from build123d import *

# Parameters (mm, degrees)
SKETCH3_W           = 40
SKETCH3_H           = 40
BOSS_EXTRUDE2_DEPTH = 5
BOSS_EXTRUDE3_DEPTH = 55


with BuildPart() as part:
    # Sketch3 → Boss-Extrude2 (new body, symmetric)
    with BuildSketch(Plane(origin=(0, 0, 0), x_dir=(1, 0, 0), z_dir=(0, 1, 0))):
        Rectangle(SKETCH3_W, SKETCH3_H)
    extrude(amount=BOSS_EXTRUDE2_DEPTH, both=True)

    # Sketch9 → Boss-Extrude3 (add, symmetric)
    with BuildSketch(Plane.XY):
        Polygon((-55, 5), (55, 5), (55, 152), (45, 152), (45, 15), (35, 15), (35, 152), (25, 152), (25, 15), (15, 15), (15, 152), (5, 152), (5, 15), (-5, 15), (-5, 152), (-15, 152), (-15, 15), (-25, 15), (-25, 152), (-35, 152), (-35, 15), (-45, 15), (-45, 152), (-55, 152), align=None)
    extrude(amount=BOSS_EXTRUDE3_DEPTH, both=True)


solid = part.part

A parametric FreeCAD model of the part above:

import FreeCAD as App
import Part
import Sketcher
from FreeCAD import Vector

doc = App.newDocument("Part")
body = doc.addObject("PartDesign::Body", "Body")

# Sketch on XZ plane
sketch1 = doc.addObject("Sketcher::SketchObject", "Sketch")
body.addObject(sketch1)
sketch1.AttachmentSupport = (doc.XZ_Plane, [""])
sketch1.MapMode = "FlatFace"
sketch1.addGeometry([
    Part.LineSegment(Vector(-20, -20, 0), Vector(-20, 20, 0)),
    Part.LineSegment(Vector(-20, 20, 0), Vector(20, 20, 0)),
    Part.LineSegment(Vector(20, 20, 0), Vector(20, -20, 0)),
    Part.LineSegment(Vector(20, -20, 0), Vector(-20, -20, 0)),
], False)
sketch1.addConstraint([
    Sketcher.Constraint("Coincident", 0, 2, 1, 1),
    Sketcher.Constraint("Coincident", 1, 2, 2, 1),
    Sketcher.Constraint("Coincident", 2, 2, 3, 1),
    Sketcher.Constraint("Coincident", 3, 2, 0, 1),
    Sketcher.Constraint("Vertical", 0),
    Sketcher.Constraint("Horizontal", 1),
    Sketcher.Constraint("Vertical", 2),
    Sketcher.Constraint("Horizontal", 3),
    Sketcher.Constraint("Symmetric", 0, 2, 2, 2, -1, 1),
    Sketcher.Constraint("Equal", 3, 0),
    Sketcher.Constraint("DistanceX", 1, 1, 1, 2, 40.0),
])
pad1 = doc.addObject("PartDesign::Pad", "Pad")
body.addObject(pad1)
pad1.Profile = sketch1
pad1.Length = 10
pad1.Midplane = True

# Sketch on XY plane
sketch2 = doc.addObject("Sketcher::SketchObject", "Sketch001")
body.addObject(sketch2)
sketch2.AttachmentSupport = (doc.XY_Plane, [""])
sketch2.MapMode = "FlatFace"
sketch2.addGeometry([
    Part.LineSegment(Vector(-55, 5, 0), Vector(55, 5, 0)),  # 0
    Part.LineSegment(Vector(55, 5, 0), Vector(55, 152, 0)),  # 1
    Part.LineSegment(Vector(55, 152, 0), Vector(45, 152, 0)),  # 2
    Part.LineSegment(Vector(45, 152, 0), Vector(45, 15, 0)),  # 3
    Part.LineSegment(Vector(45, 15, 0), Vector(35, 15, 0)),  # 4
    Part.LineSegment(Vector(35, 15, 0), Vector(35, 152, 0)),  # 5
    Part.LineSegment(Vector(35, 152, 0), Vector(25, 152, 0)),  # 6
    Part.LineSegment(Vector(25, 152, 0), Vector(25, 15, 0)),  # 7
    Part.LineSegment(Vector(25, 15, 0), Vector(15, 15, 0)),  # 8
    Part.LineSegment(Vector(15, 15, 0), Vector(15, 152, 0)),  # 9
    Part.LineSegment(Vector(15, 152, 0), Vector(5, 152, 0)),  # 10
    Part.LineSegment(Vector(5, 152, 0), Vector(5, 15, 0)),  # 11
    Part.LineSegment(Vector(5, 15, 0), Vector(-5, 15, 0)),  # 12
    Part.LineSegment(Vector(-5, 15, 0), Vector(-5, 152, 0)),  # 13
    Part.LineSegment(Vector(-5, 152, 0), Vector(-15, 152, 0)),  # 14
    Part.LineSegment(Vector(-15, 152, 0), Vector(-15, 15, 0)),  # 15
    Part.LineSegment(Vector(-15, 15, 0), Vector(-25, 15, 0)),  # 16
    Part.LineSegment(Vector(-25, 15, 0), Vector(-25, 152, 0)),  # 17
    Part.LineSegment(Vector(-25, 152, 0), Vector(-35, 152, 0)),  # 18
    Part.LineSegment(Vector(-35, 152, 0), Vector(-35, 15, 0)),  # 19
    Part.LineSegment(Vector(-35, 15, 0), Vector(-45, 15, 0)),  # 20
    Part.LineSegment(Vector(-45, 15, 0), Vector(-45, 152, 0)),  # 21
    Part.LineSegment(Vector(-45, 152, 0), Vector(-55, 152, 0)),  # 22
    Part.LineSegment(Vector(-55, 152, 0), Vector(-55, 5, 0)),  # 23
], False)
sketch2.addConstraint([
    Sketcher.Constraint("Coincident", 0, 2, 1, 1),
    Sketcher.Constraint("Coincident", 1, 2, 2, 1),
    Sketcher.Constraint("Coincident", 2, 2, 3, 1),
    Sketcher.Constraint("Coincident", 3, 2, 4, 1),
    Sketcher.Constraint("Coincident", 4, 2, 5, 1),
    Sketcher.Constraint("Coincident", 5, 2, 6, 1),
    Sketcher.Constraint("Coincident", 6, 2, 7, 1),
    Sketcher.Constraint("Coincident", 7, 2, 8, 1),
    Sketcher.Constraint("Coincident", 8, 2, 9, 1),
    Sketcher.Constraint("Coincident", 9, 2, 10, 1),
    Sketcher.Constraint("Coincident", 10, 2, 11, 1),
    Sketcher.Constraint("Coincident", 11, 2, 12, 1),
    Sketcher.Constraint("Coincident", 12, 2, 13, 1),
    Sketcher.Constraint("Coincident", 13, 2, 14, 1),
    Sketcher.Constraint("Coincident", 14, 2, 15, 1),
    Sketcher.Constraint("Coincident", 15, 2, 16, 1),
    Sketcher.Constraint("Coincident", 16, 2, 17, 1),
    Sketcher.Constraint("Coincident", 17, 2, 18, 1),
    Sketcher.Constraint("Coincident", 18, 2, 19, 1),
    Sketcher.Constraint("Coincident", 19, 2, 20, 1),
    Sketcher.Constraint("Coincident", 20, 2, 21, 1),
    Sketcher.Constraint("Coincident", 21, 2, 22, 1),
    Sketcher.Constraint("Coincident", 22, 2, 23, 1),
    Sketcher.Constraint("Coincident", 23, 2, 0, 1),
    Sketcher.Constraint("Horizontal", 0),
    Sketcher.Constraint("Vertical", 1),
    Sketcher.Constraint("Horizontal", 2),
    Sketcher.Constraint("Vertical", 3),
    Sketcher.Constraint("Horizontal", 4),
    Sketcher.Constraint("Vertical", 5),
    Sketcher.Constraint("Horizontal", 6),
    Sketcher.Constraint("Vertical", 7),
    Sketcher.Constraint("Horizontal", 8),
    Sketcher.Constraint("Vertical", 9),
    Sketcher.Constraint("Horizontal", 10),
    Sketcher.Constraint("Vertical", 11),
    Sketcher.Constraint("Horizontal", 12),
    Sketcher.Constraint("Vertical", 13),
    Sketcher.Constraint("Horizontal", 14),
    Sketcher.Constraint("Vertical", 15),
    Sketcher.Constraint("Horizontal", 16),
    Sketcher.Constraint("Vertical", 17),
    Sketcher.Constraint("Horizontal", 18),
    Sketcher.Constraint("Vertical", 19),
    Sketcher.Constraint("Horizontal", 20),
    Sketcher.Constraint("Vertical", 21),
    Sketcher.Constraint("Horizontal", 22),
    Sketcher.Constraint("Vertical", 23),
    Sketcher.Constraint("Symmetric", 10, 2, 13, 2, -2),
    Sketcher.Constraint("Symmetric", 8, 2, 15, 2, -2),
    Sketcher.Constraint("Symmetric", 6, 2, 17, 2, -2),
    Sketcher.Constraint("Symmetric", 4, 2, 19, 2, -2),
    Sketcher.Constraint("Symmetric", 2, 2, 21, 2, -2),
    Sketcher.Constraint("Horizontal", 2, 2, 5, 2),
    Sketcher.Constraint("Horizontal", 4, 2, 7, 2),
    Sketcher.Constraint("Horizontal", 6, 2, 9, 2),
    Sketcher.Constraint("Horizontal", 8, 2, 11, 2),
    Sketcher.Constraint("Equal", 2, 4),
    Sketcher.Constraint("Equal", 4, 6),
    Sketcher.Constraint("Equal", 6, 8),
    Sketcher.Constraint("Equal", 8, 10),
    Sketcher.Constraint("Equal", 10, 12),
    Sketcher.Constraint("Equal", 20, 22),
    Sketcher.Constraint("DistanceX", 0, 1, 0, 2, 110.0),
    Sketcher.Constraint("DistanceY", 1, 1, 1, 2, 147.0),
    Sketcher.Constraint("DistanceY", 3, 2, 3, 1, 137.0),
    Sketcher.Constraint("DistanceY", -1, 1, 0, 2, 5.0),
])
pad2 = doc.addObject("PartDesign::Pad", "Pad001")
body.addObject(pad2)
pad2.Profile = sketch2
pad2.Length = 110
pad2.Midplane = True

doc.recompute()
